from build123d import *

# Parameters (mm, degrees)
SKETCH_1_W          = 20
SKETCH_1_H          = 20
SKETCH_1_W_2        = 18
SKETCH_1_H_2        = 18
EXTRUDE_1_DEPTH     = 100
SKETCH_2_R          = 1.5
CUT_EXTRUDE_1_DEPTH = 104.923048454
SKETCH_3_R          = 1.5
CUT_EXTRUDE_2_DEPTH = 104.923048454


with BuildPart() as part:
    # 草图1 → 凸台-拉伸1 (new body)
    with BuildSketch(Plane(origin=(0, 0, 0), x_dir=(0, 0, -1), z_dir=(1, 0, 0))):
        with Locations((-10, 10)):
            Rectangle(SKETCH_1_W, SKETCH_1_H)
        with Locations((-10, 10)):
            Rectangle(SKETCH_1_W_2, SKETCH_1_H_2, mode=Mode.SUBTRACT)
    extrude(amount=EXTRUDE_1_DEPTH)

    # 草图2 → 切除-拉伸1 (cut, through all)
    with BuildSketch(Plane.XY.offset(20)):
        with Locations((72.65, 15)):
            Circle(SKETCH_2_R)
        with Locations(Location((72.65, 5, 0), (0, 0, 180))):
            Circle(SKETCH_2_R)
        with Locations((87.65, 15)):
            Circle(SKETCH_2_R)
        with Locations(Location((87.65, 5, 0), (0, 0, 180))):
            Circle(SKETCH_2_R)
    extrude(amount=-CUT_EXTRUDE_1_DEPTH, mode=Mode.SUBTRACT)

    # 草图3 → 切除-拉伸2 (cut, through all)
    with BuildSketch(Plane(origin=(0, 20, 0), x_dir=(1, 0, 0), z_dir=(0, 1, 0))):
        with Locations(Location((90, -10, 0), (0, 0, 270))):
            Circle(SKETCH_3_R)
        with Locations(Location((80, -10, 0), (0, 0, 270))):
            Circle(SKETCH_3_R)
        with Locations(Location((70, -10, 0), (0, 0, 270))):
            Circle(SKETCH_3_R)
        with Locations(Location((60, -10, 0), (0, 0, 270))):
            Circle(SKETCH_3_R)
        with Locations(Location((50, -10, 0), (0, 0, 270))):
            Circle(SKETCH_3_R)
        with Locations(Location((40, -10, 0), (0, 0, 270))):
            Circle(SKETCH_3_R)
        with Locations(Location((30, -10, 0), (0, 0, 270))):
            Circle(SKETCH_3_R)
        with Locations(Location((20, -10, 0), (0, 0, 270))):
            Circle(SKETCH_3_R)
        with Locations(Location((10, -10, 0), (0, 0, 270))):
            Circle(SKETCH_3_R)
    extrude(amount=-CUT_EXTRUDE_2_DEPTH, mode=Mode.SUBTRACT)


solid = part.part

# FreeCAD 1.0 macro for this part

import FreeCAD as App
import Part
import Sketcher
from FreeCAD import Vector


def add_polygon(sketch, points):
    """Adds a closed chain of lines whose ends are joined by coincident constraints."""
    first, n = sketch.GeometryCount, len(points)
    for a, b in zip(points, points[1:] + points[:1]):
        sketch.addGeometry(Part.LineSegment(App.Vector(*a, 0), App.Vector(*b, 0)), False)
    for i in range(n):
        sketch.addConstraint(Sketcher.Constraint("Coincident", first + i, 2, first + (i + 1) % n, 1))

doc = App.newDocument("Part")
params = doc.addObject("Spreadsheet::Sheet", "Params")
for row, (alias, value) in enumerate([
    ("sketch1_width", "20 mm"),
    ("sketch1_width2", "18 mm"),
    ("pad1_length", "100 mm"),
    ("sketch2_diameter", "3 mm"),
    ("sketch3_diameter", "3 mm"),
], start=1):
    params.set(f"A{row}", alias)
    params.set(f"B{row}", "=" + value)
    params.setAlias(f"B{row}", alias)

body = doc.addObject("PartDesign::Body", "Body")

sketch1 = doc.addObject("Sketcher::SketchObject", "Sketch")
body.addObject(sketch1)
sketch1.AttachmentSupport = (doc.YZ_Plane, [""])
sketch1.MapMode = "FlatFace"
add_polygon(sketch1, [(20, 20), (0, 20), (0, 0), (20, 0)])
add_polygon(sketch1, [(1, 1), (1, 19), (19, 19), (19, 1)])
sketch1.addConstraint([
    Sketcher.Constraint("Horizontal", 0),
    Sketcher.Constraint("Vertical", 1),
    Sketcher.Constraint("Horizontal", 2),
    Sketcher.Constraint("Vertical", 3),
    Sketcher.Constraint("Vertical", 4),
    Sketcher.Constraint("Horizontal", 5),
    Sketcher.Constraint("Vertical", 6),
    Sketcher.Constraint("Horizontal", 7),
    Sketcher.Constraint("Coincident", 1, 2, -1, 1),
    Sketcher.Constraint("Equal", 2, 1),
    Sketcher.Constraint("Equal", 7, 4),
    Sketcher.Constraint("DistanceX", 0, 2, 0, 1, 20.0),
    Sketcher.Constraint("DistanceX", 5, 1, 5, 2, 18.0),
    Sketcher.Constraint("DistanceX", -1, 1, 4, 2, 1.0),
    Sketcher.Constraint("DistanceY", -1, 1, 4, 2, 19.0),
])
sketch1.setExpression("Constraints[19]", "Params.sketch1_width")
sketch1.setExpression("Constraints[20]", "Params.sketch1_width2")
pad1 = doc.addObject("PartDesign::Pad", "Pad")
body.addObject(pad1)
pad1.Profile = sketch1
pad1.setExpression("Length", "Params.pad1_length")

sketch2 = doc.addObject("Sketcher::SketchObject", "Sketch001")
body.addObject(sketch2)
sketch2.AttachmentSupport = (doc.XY_Plane, [""])
sketch2.MapMode = "FlatFace"
sketch2.AttachmentOffset = App.Placement(Vector(0, 0, 20), App.Rotation())
sketch2.addGeometry([
    Part.Circle(Vector(72.7, 15, 0), Vector(0, 0, 1), 1.5),
    Part.Circle(Vector(72.7, 5, 0), Vector(0, 0, 1), 1.5),
    Part.Circle(Vector(87.7, 15, 0), Vector(0, 0, 1), 1.5),
    Part.Circle(Vector(87.7, 5, 0), Vector(0, 0, 1), 1.5),
], False)
sketch2.addConstraint([
    Sketcher.Constraint("Equal", 0, 1),
    Sketcher.Constraint("Equal", 1, 2),
    Sketcher.Constraint("Equal", 2, 3),
    Sketcher.Constraint("Horizontal", 0, 3, 2, 3),
    Sketcher.Constraint("Horizontal", 1, 3, 3, 3),
    Sketcher.Constraint("Vertical", 0, 3, 1, 3),
    Sketcher.Constraint("Vertical", 2, 3, 3, 3),
    Sketcher.Constraint("Diameter", 0, 3.0),
    Sketcher.Constraint("DistanceY", -1, 1, 0, 3, 15.0),
    Sketcher.Constraint("DistanceY", -1, 1, 1, 3, 5.0),
    Sketcher.Constraint("DistanceX", 0, 3, 2, 3, 15.0),
    Sketcher.Constraint("DistanceX", -1, 1, 0, 3, 72.65),
])
sketch2.setExpression("Constraints[7]", "Params.sketch2_diameter")
pocket1 = doc.addObject("PartDesign::Pocket", "Pocket")
body.addObject(pocket1)
pocket1.Profile = sketch2
pocket1.Type = "ThroughAll"

sketch3 = doc.addObject("Sketcher::SketchObject", "Sketch002")
body.addObject(sketch3)
sketch3.AttachmentSupport = (doc.XZ_Plane, [""])
sketch3.MapMode = "FlatFace"
sketch3.AttachmentOffset = App.Placement(Vector(0, 0, -20), App.Rotation())
sketch3.addGeometry([
    Part.Circle(Vector(90, 10, 0), Vector(0, 0, 1), 1.5),
    Part.Circle(Vector(80, 10, 0), Vector(0, 0, 1), 1.5),
    Part.Circle(Vector(70, 10, 0), Vector(0, 0, 1), 1.5),
    Part.Circle(Vector(60, 10, 0), Vector(0, 0, 1), 1.5),
    Part.Circle(Vector(50, 10, 0), Vector(0, 0, 1), 1.5),
    Part.Circle(Vector(40, 10, 0), Vector(0, 0, 1), 1.5),
    Part.Circle(Vector(30, 10, 0), Vector(0, 0, 1), 1.5),
    Part.Circle(Vector(20, 10, 0), Vector(0, 0, 1), 1.5),
    Part.Circle(Vector(10, 10, 0), Vector(0, 0, 1), 1.5),
], False)
sketch3.addConstraint([
    Sketcher.Constraint("Equal", 0, 1),
    Sketcher.Constraint("Equal", 1, 2),
    Sketcher.Constraint("Equal", 2, 3),
    Sketcher.Constraint("Equal", 3, 4),
    Sketcher.Constraint("Equal", 4, 5),
    Sketcher.Constraint("Equal", 5, 6),
    Sketcher.Constraint("Equal", 6, 7),
    Sketcher.Constraint("Equal", 7, 8),
    Sketcher.Constraint("Horizontal", 0, 3, 1, 3),
    Sketcher.Constraint("Horizontal", 1, 3, 2, 3),
    Sketcher.Constraint("Horizontal", 2, 3, 3, 3),
    Sketcher.Constraint("Horizontal", 3, 3, 4, 3),
    Sketcher.Constraint("Horizontal", 4, 3, 5, 3),
    Sketcher.Constraint("Horizontal", 5, 3, 6, 3),
    Sketcher.Constraint("Horizontal", 6, 3, 7, 3),
    Sketcher.Constraint("Horizontal", 7, 3, 8, 3),
    Sketcher.Constraint("Diameter", 0, 3.0),
    Sketcher.Constraint("DistanceX", -1, 1, 0, 3, 90.0),
    Sketcher.Constraint("DistanceY", -1, 1, 0, 3, 10.0),
    Sketcher.Constraint("DistanceX", -1, 1, 1, 3, 80.0),
    Sketcher.Constraint("DistanceX", -1, 1, 2, 3, 70.0),
    Sketcher.Constraint("DistanceX", -1, 1, 3, 3, 60.0),
    Sketcher.Constraint("DistanceX", -1, 1, 4, 3, 50.0),
    Sketcher.Constraint("DistanceX", -1, 1, 5, 3, 40.0),
    Sketcher.Constraint("DistanceX", -1, 1, 6, 3, 30.0),
    Sketcher.Constraint("DistanceX", -1, 1, 7, 3, 20.0),
    Sketcher.Constraint("DistanceX", -1, 1, 8, 3, 10.0),
])
sketch3.setExpression("Constraints[16]", "Params.sketch3_diameter")
pocket2 = doc.addObject("PartDesign::Pocket", "Pocket001")
body.addObject(pocket2)
pocket2.Profile = sketch3
pocket2.Type = "ThroughAll"
pocket2.Reversed = True

doc.recompute()
